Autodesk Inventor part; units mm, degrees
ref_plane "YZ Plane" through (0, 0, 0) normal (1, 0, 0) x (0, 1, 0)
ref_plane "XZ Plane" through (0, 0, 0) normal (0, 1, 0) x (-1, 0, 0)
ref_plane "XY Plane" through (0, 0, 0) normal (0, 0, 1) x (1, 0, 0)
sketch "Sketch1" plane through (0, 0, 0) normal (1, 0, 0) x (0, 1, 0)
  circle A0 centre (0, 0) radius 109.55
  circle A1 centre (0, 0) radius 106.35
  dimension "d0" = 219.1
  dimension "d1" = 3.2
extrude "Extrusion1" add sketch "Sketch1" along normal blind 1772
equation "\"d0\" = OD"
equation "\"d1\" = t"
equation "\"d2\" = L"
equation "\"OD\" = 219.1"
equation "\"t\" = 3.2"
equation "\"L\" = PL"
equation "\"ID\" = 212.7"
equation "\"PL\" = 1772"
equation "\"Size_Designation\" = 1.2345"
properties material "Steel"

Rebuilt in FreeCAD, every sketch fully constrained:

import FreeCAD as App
import Part
import Sketcher
from FreeCAD import Vector

doc = App.newDocument("Part")
body = doc.addObject("PartDesign::Body", "Body")

sketch1 = doc.addObject("Sketcher::SketchObject", "Sketch")
body.addObject(sketch1)
sketch1.AttachmentSupport = (doc.YZ_Plane, [""])
sketch1.MapMode = "FlatFace"
sketch1.addGeometry([
    Part.Circle(Vector(0, 0, 0), Vector(0, 0, 1), 109.55),
    Part.Circle(Vector(0, 0, 0), Vector(0, 0, 1), 106.35),
], False)
sketch1.addConstraint([
    Sketcher.Constraint("Coincident", 0, 3, -1, 1),
    Sketcher.Constraint("Coincident", 1, 3, -1, 1),
    Sketcher.Constraint("Diameter", 0, 219.1),
    Sketcher.Constraint("Diameter", 1, 212.7),
])
pad1 = doc.addObject("PartDesign::Pad", "Pad")
body.addObject(pad1)
pad1.Profile = sketch1
pad1.Length = 1772

doc.recompute()
